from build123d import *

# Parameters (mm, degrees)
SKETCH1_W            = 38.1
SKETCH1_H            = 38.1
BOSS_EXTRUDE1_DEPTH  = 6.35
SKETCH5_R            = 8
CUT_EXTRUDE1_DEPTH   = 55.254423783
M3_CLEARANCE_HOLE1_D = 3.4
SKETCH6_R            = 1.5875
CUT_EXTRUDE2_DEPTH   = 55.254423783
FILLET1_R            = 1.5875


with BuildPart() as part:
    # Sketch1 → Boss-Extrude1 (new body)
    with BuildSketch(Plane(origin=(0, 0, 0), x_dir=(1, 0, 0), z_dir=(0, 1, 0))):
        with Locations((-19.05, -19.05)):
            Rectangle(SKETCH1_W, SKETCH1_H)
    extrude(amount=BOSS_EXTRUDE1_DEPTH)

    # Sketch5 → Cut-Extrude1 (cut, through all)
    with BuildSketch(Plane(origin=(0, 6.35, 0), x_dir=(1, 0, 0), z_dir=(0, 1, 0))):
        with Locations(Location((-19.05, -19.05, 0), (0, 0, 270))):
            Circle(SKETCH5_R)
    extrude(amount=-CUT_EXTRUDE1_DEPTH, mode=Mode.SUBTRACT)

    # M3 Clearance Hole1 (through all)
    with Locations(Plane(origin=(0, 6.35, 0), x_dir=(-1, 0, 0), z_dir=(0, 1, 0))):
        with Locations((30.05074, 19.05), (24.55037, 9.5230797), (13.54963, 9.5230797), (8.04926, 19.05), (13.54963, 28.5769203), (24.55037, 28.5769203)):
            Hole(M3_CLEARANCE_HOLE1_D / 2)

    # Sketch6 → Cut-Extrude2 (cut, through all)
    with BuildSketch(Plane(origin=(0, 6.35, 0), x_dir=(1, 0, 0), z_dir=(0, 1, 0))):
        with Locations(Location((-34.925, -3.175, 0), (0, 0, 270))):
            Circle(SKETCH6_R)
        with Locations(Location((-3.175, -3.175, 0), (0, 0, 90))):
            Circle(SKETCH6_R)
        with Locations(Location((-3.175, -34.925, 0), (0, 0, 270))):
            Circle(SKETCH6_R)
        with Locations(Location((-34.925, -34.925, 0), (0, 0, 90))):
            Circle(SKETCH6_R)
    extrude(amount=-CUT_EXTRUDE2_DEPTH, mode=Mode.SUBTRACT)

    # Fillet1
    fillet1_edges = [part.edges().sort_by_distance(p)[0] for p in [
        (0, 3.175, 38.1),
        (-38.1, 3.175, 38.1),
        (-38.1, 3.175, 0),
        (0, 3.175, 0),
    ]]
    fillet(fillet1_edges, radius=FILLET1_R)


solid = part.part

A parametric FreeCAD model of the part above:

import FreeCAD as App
import Part
import Sketcher

V = App.Vector
Q = App.Units.Quantity


def edges_at(feature, points):
    """Names of the edges that pass closest to the given points."""
    edges = feature.Shape.Edges
    near = lambda p: min(range(len(edges)), key=lambda i: edges[i].distToShape(Part.Vertex(*p))[0])
    return sorted({f"Edge{near(p) + 1}" for p in points})

doc = App.newDocument("Part")
params = doc.addObject("Spreadsheet::Sheet", "Params")
for row, (alias, value) in enumerate([
    ("sketch1_width", "1.5 in"),
    ("pad1_length", "0.25 in"),
    ("hole_diameter", "3.4 mm"),
    ("sketch4_diameter", "0.125 in"),
    ("fillet_radius", "0.0625 in"),
], start=1):
    params.set(f"A{row}", alias)
    params.set(f"B{row}", "=" + value)
    params.setAlias(f"B{row}", alias)

body = doc.addObject("PartDesign::Body", "Body")

# Sketch on XZ plane
sketch1 = doc.addObject("Sketcher::SketchObject", "Sketch")
body.addObject(sketch1)
sketch1.AttachmentSupport = (doc.XZ_Plane, [""])
sketch1.MapMode = "FlatFace"
sketch1.addGeometry(Part.LineSegment(V(-38, 0, 0), V(-38, 38, 0)), False)
sketch1.addGeometry(Part.LineSegment(V(-38, 38, 0), V(0, 38, 0)), False)
sketch1.addGeometry(Part.LineSegment(V(0, 38, 0), V(0, 0, 0)), False)
sketch1.addGeometry(Part.LineSegment(V(0, 0, 0), V(-38, 0, 0)), False)
sketch1.addConstraint(Sketcher.Constraint("Coincident", 0, 2, 1, 1))
sketch1.addConstraint(Sketcher.Constraint("Coincident", 1, 2, 2, 1))
sketch1.addConstraint(Sketcher.Constraint("Coincident", 2, 2, 3, 1))
sketch1.addConstraint(Sketcher.Constraint("Coincident", 3, 2, 0, 1))
sketch1.addConstraint(Sketcher.Constraint("Vertical", 0))
sketch1.addConstraint(Sketcher.Constraint("Horizontal", 1))
sketch1.addConstraint(Sketcher.Constraint("Vertical", 2))
sketch1.addConstraint(Sketcher.Constraint("Horizontal", 3))
sketch1.addConstraint(Sketcher.Constraint("Coincident", 2, 2, -1, 1))
sketch1.addConstraint(Sketcher.Constraint("Equal", 3, 0))
sketch1.addConstraint(Sketcher.Constraint("DistanceX", 1, 1, 1, 2, Q("1.5 in")))
sketch1.setExpression("Constraints[10]", "Params.sketch1_width")
pad1 = doc.addObject("PartDesign::Pad", "Pad")
body.addObject(pad1)
pad1.Profile = sketch1
pad1.setExpression("Length", "Params.pad1_length")
pad1.Reversed = True

# Sketch on XZ plane
sketch2 = doc.addObject("Sketcher::SketchObject", "Sketch001")
body.addObject(sketch2)
sketch2.AttachmentSupport = (doc.XZ_Plane, [""])
sketch2.MapMode = "FlatFace"
sketch2.AttachmentOffset = App.Placement(V(0, 0, -0.25 * 25.4), App.Rotation())
sketch2.addGeometry(Part.Circle(V(-19, 19, 0), V(0, 0, 1), 8), False)
sketch2.addConstraint(Sketcher.Constraint("Diameter", 0, Q("16 mm")))
sketch2.addConstraint(Sketcher.Constraint("DistanceX", 0, 3, -1, 1, Q("0.75 in")))
sketch2.addConstraint(Sketcher.Constraint("DistanceY", -1, 1, 0, 3, Q("0.75 in")))
pocket1 = doc.addObject("PartDesign::Pocket", "Pocket")
body.addObject(pocket1)
pocket1.Profile = sketch2
pocket1.Type = "ThroughAll"
pocket1.Reversed = True

# Sketch on XZ plane
sketch3 = doc.addObject("Sketcher::SketchObject", "Sketch002")
body.addObject(sketch3)
sketch3.AttachmentSupport = (doc.XZ_Plane, [""])
sketch3.MapMode = "FlatFace"
sketch3.AttachmentOffset = App.Placement(V(0, 0, -0.25 * 25.4), App.Rotation())
sketch3.addGeometry(Part.Circle(V(-30.1, 19.1, 0), V(0, 0, 1), 1.7), False)
sketch3.addGeometry(Part.Circle(V(-24.6, 9.5, 0), V(0, 0, 1), 1.7), False)
sketch3.addGeometry(Part.Circle(V(-13.5, 9.5, 0), V(0, 0, 1), 1.7), False)
sketch3.addGeometry(Part.Circle(V(-8, 19.1, 0), V(0, 0, 1), 1.7), False)
sketch3.addGeometry(Part.Circle(V(-13.5, 28.6, 0), V(0, 0, 1), 1.7), False)
sketch3.addGeometry(Part.Circle(V(-24.6, 28.6, 0), V(0, 0, 1), 1.7), False)
sketch3.addConstraint(Sketcher.Constraint("Equal", 0, 1))
sketch3.addConstraint(Sketcher.Constraint("Equal", 1, 2))
sketch3.addConstraint(Sketcher.Constraint("Equal", 2, 3))
sketch3.addConstraint(Sketcher.Constraint("Equal", 3, 4))
sketch3.addConstraint(Sketcher.Constraint("Equal", 4, 5))
sketch3.addConstraint(Sketcher.Constraint("Horizontal", 1, 3, 2, 3))
sketch3.addConstraint(Sketcher.Constraint("Horizontal", 0, 3, 3, 3))
sketch3.addConstraint(Sketcher.Constraint("Horizontal", 4, 3, 5, 3))
sketch3.addConstraint(Sketcher.Constraint("Vertical", 2, 3, 4, 3))
sketch3.addConstraint(Sketcher.Constraint("Vertical", 1, 3, 5, 3))
sketch3.addConstraint(Sketcher.Constraint("Diameter", 0, Q("3.4 mm")))
sketch3.addConstraint(Sketcher.Constraint("DistanceY", -1, 1, 0, 3, Q("0.75 in")))
sketch3.addConstraint(Sketcher.Constraint("DistanceX", 0, 3, -1, 1, Q("1.1831 in")))
sketch3.addConstraint(Sketcher.Constraint("DistanceX", 3, 3, -1, 1, Q("0.3169 in")))
sketch3.addConstraint(Sketcher.Constraint("DistanceX", 1, 3, 2, 3, Q("0.4331 in")))
sketch3.addConstraint(Sketcher.Constraint("DistanceX", 1, 3, -1, 1, Q("24.55037 mm")))
sketch3.addConstraint(Sketcher.Constraint("DistanceY", -1, 1, 1, 3, Q("9.52308 mm")))
sketch3.addConstraint(Sketcher.Constraint("DistanceY", -1, 1, 4, 3, Q("28.57692 mm")))
doc.recompute()
hole = doc.addObject("PartDesign::Hole", "Hole")
body.addObject(hole)
hole.Profile = sketch3
hole.ThreadType = "None"
hole.setExpression("Diameter", "Params.hole_diameter")
hole.DepthType = "ThroughAll"
hole.Reversed = True

# Sketch on XZ plane
sketch4 = doc.addObject("Sketcher::SketchObject", "Sketch003")
body.addObject(sketch4)
sketch4.AttachmentSupport = (doc.XZ_Plane, [""])
sketch4.MapMode = "FlatFace"
sketch4.AttachmentOffset = App.Placement(V(0, 0, -0.25 * 25.4), App.Rotation())
sketch4.addGeometry(Part.Circle(V(-34.9, 3.2, 0), V(0, 0, 1), 1.6), False)
sketch4.addGeometry(Part.Circle(V(-3.2, 3.2, 0), V(0, 0, 1), 1.6), False)
sketch4.addGeometry(Part.Circle(V(-3.2, 34.9, 0), V(0, 0, 1), 1.6), False)
sketch4.addGeometry(Part.Circle(V(-34.9, 34.9, 0), V(0, 0, 1), 1.6), False)
sketch4.addConstraint(Sketcher.Constraint("Equal", 0, 1))
sketch4.addConstraint(Sketcher.Constraint("Equal", 1, 2))
sketch4.addConstraint(Sketcher.Constraint("Equal", 2, 3))
sketch4.addConstraint(Sketcher.Constraint("Horizontal", 0, 3, 1, 3))
sketch4.addConstraint(Sketcher.Constraint("Horizontal", 2, 3, 3, 3))
sketch4.addConstraint(Sketcher.Constraint("Vertical", 1, 3, 2, 3))
sketch4.addConstraint(Sketcher.Constraint("Vertical", 0, 3, 3, 3))
sketch4.addConstraint(Sketcher.Constraint("Diameter", 0, Q("0.125 in")))
sketch4.addConstraint(Sketcher.Constraint("DistanceX", 0, 3, 1, 3, Q("1.25 in")))
sketch4.addConstraint(Sketcher.Constraint("DistanceY", 1, 3, 2, 3, Q("1.25 in")))
sketch4.addConstraint(Sketcher.Constraint("DistanceX", 0, 3, -1, 1, Q("1.375 in")))
sketch4.addConstraint(Sketcher.Constraint("DistanceY", -1, 1, 0, 3, Q("0.125 in")))
sketch4.setExpression("Constraints[7]", "Params.sketch4_diameter")
pocket2 = doc.addObject("PartDesign::Pocket", "Pocket001")
body.addObject(pocket2)
pocket2.Profile = sketch4
pocket2.Type = "ThroughAll"
pocket2.Reversed = True
doc.recompute()

fillet = doc.addObject("PartDesign::Fillet", "Fillet")
body.addObject(fillet)
fillet.Base = (pocket2, edges_at(pocket2, [
    (0, 3.175, 38.1),
    (-38.1, 3.175, 38.1),
    (-38.1, 3.175, 0),
    (0, 3.175, 0),
]))
fillet.setExpression("Radius", "Params.fillet_radius")

doc.recompute()
